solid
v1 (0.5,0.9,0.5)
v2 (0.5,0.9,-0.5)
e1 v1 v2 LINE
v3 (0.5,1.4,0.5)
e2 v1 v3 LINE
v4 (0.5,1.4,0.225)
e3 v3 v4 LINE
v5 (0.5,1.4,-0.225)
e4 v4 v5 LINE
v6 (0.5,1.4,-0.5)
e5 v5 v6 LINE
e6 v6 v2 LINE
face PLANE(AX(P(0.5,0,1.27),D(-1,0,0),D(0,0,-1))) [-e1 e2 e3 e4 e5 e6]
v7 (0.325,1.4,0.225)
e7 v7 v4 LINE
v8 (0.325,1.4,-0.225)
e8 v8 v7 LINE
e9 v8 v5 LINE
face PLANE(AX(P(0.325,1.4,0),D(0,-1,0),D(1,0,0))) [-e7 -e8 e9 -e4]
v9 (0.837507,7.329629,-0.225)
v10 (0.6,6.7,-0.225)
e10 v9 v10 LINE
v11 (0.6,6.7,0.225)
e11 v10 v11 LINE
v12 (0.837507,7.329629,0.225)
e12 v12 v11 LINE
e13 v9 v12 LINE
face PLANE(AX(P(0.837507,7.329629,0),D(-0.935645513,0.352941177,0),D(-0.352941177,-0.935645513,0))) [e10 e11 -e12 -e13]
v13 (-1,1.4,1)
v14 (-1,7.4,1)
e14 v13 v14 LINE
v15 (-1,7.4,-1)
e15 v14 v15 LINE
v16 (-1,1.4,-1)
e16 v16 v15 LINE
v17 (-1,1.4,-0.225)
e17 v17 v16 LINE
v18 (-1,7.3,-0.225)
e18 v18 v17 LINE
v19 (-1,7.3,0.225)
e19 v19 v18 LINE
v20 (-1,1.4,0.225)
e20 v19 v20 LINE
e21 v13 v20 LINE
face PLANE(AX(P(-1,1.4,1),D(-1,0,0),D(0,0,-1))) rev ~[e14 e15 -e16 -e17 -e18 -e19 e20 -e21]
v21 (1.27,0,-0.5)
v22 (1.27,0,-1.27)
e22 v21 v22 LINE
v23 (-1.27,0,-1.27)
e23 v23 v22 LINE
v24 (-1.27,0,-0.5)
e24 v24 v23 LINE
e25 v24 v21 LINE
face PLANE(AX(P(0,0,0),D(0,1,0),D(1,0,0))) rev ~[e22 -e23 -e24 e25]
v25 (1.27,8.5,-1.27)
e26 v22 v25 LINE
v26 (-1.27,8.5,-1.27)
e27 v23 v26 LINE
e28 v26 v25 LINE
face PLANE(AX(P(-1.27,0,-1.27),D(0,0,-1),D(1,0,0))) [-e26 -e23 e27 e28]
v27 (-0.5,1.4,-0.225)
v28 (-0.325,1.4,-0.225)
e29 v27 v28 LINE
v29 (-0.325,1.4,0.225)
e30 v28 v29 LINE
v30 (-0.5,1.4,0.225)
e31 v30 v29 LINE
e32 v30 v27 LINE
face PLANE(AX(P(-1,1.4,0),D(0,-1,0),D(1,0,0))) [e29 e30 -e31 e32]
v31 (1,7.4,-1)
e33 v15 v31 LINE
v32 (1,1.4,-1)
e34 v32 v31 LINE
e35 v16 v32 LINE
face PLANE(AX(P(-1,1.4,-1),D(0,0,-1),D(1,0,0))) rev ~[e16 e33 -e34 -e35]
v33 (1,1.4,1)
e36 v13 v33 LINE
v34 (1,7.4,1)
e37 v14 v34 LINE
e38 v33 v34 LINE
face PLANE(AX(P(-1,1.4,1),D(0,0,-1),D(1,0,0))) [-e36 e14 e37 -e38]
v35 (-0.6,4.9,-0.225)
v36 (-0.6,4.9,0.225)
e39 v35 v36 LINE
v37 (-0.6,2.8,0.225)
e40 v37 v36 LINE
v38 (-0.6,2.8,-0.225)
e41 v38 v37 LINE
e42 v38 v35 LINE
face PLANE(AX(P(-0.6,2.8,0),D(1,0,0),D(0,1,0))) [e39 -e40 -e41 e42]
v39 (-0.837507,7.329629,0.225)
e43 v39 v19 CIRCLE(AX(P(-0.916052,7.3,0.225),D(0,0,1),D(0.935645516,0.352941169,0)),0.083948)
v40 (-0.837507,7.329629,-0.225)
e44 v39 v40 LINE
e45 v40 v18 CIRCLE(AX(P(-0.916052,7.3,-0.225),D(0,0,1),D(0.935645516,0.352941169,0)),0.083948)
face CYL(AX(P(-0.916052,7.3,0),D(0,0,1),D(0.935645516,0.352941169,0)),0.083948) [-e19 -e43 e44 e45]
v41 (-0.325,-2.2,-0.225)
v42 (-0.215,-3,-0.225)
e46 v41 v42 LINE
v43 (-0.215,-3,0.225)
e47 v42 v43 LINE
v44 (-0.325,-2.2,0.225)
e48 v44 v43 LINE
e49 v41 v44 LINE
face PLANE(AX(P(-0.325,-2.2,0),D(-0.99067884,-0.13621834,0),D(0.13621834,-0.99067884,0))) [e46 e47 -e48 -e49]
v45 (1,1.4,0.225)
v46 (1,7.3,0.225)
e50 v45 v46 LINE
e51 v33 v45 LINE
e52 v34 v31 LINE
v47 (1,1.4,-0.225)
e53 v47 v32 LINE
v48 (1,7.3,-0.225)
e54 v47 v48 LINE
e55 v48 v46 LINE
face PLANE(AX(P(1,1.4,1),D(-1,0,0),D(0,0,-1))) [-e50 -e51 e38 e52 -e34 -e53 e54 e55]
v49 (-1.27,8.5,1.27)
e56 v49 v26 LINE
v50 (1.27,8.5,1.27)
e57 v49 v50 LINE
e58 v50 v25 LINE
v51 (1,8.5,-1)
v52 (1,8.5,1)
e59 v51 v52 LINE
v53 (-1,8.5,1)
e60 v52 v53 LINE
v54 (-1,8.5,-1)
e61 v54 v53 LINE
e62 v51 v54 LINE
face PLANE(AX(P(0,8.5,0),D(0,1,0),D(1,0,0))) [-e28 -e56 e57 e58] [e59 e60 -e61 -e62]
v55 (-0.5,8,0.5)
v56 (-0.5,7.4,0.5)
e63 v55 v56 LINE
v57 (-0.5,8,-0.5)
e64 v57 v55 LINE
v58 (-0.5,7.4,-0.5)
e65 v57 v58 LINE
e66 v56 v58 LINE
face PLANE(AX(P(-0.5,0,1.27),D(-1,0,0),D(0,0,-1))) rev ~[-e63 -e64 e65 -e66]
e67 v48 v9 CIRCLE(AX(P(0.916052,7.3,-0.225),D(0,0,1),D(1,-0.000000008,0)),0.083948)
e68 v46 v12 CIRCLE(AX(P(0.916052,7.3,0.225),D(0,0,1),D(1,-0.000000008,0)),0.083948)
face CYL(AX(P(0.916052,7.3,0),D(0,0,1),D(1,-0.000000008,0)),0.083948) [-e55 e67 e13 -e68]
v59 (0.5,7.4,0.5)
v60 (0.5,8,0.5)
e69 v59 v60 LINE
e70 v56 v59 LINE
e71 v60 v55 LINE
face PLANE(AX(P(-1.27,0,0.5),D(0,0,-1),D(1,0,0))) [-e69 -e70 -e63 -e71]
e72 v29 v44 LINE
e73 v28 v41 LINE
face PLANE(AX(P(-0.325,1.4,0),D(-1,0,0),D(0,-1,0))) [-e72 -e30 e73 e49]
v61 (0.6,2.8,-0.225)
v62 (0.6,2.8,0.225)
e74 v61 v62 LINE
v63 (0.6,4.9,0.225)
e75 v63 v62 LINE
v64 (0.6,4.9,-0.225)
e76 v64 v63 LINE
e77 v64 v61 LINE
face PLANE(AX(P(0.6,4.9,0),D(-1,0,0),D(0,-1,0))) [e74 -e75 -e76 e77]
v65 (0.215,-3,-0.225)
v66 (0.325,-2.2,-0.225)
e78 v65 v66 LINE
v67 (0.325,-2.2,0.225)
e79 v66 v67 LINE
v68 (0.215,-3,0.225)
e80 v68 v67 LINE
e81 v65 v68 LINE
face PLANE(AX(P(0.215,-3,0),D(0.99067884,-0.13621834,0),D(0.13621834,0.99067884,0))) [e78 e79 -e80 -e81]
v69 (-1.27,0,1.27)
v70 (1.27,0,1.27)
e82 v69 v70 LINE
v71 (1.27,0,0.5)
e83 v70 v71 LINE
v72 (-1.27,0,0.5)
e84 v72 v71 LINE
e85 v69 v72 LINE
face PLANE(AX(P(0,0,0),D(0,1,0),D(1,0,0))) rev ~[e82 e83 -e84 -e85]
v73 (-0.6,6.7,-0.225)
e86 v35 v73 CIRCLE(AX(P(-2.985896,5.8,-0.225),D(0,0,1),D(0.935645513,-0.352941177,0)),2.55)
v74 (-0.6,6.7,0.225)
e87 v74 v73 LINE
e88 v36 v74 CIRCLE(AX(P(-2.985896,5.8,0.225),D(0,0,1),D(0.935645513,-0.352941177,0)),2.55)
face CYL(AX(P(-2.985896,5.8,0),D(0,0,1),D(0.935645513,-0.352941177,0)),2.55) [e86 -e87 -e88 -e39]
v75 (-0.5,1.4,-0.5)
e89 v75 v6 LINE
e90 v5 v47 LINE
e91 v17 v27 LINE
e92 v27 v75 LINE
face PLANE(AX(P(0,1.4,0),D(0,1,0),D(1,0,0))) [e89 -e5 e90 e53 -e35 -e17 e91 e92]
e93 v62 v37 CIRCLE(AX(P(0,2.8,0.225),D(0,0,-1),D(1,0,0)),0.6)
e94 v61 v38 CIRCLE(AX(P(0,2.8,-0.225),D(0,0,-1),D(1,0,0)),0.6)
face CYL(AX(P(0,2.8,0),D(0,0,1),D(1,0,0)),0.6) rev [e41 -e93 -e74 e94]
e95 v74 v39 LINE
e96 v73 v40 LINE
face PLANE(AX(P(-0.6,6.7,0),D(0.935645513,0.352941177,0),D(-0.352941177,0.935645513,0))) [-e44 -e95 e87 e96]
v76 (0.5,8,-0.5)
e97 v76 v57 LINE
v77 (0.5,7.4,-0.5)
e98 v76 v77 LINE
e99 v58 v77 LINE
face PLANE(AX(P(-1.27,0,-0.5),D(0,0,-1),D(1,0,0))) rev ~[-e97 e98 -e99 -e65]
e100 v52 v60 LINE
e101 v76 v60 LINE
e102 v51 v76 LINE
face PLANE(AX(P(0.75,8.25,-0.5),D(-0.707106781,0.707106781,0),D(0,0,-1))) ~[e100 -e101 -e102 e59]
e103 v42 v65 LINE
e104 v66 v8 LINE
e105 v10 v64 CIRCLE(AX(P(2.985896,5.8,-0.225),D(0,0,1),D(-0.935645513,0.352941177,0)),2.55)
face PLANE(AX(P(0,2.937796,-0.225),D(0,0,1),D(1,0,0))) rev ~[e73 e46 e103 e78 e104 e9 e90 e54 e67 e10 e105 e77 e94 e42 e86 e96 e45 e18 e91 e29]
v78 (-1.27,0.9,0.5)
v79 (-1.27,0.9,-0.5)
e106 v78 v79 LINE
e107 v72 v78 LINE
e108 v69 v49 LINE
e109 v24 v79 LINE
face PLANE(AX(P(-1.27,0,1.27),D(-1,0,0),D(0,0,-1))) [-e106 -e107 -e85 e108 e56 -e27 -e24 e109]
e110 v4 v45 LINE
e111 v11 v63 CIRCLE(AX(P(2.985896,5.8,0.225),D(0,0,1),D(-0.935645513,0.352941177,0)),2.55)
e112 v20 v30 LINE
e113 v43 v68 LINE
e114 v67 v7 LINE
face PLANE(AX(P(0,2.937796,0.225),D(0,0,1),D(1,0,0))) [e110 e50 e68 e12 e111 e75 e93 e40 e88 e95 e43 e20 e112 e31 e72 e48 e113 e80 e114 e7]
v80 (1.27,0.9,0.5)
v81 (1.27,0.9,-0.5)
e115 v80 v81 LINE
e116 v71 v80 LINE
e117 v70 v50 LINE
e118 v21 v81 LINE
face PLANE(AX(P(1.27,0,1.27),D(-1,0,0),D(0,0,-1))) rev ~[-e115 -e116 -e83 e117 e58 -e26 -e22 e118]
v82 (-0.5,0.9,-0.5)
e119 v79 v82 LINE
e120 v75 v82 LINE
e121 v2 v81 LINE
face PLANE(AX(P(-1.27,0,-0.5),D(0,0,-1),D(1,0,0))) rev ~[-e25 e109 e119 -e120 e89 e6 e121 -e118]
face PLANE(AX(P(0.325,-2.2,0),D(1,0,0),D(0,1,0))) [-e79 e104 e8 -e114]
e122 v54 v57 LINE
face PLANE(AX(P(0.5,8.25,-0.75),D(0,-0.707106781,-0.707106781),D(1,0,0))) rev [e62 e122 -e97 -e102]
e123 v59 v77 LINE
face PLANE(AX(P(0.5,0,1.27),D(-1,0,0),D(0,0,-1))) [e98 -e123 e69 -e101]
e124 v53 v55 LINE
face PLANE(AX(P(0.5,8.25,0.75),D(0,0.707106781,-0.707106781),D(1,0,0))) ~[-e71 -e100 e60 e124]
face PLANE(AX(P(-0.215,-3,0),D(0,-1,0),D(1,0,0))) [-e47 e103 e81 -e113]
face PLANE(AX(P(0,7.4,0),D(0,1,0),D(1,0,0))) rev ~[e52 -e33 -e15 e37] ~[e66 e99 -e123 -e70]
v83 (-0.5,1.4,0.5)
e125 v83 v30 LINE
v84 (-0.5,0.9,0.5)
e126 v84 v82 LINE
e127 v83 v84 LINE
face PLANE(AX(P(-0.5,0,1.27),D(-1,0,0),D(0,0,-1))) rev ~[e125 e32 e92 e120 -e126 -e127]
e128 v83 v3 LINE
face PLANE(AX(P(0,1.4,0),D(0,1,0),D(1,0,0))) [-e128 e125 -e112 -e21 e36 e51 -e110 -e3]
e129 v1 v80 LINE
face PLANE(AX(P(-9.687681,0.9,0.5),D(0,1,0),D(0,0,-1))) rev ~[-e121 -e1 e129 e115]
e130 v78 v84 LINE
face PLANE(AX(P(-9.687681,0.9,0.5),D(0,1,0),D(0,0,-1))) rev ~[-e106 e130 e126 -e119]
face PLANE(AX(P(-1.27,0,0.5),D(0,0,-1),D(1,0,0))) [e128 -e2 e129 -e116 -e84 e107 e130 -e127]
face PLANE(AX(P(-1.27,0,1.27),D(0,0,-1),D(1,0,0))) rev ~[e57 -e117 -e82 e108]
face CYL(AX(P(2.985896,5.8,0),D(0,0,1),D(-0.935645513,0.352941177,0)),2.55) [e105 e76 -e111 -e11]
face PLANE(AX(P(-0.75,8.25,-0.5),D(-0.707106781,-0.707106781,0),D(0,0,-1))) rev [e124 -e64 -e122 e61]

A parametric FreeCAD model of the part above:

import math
import FreeCAD as App
import Part
import Sketcher
Q = App.Units.Quantity


def edges_at(feature, points):
    """Names of the edges that pass closest to the given points."""
    edges = feature.Shape.Edges
    near = lambda p: min(range(len(edges)), key=lambda i: edges[i].distToShape(Part.Vertex(*p))[0])
    return sorted({f"Edge{near(p) + 1}" for p in points})


def faces_at(feature, points):
    """Names of the faces that lie closest to the given points."""
    faces = feature.Shape.Faces
    near = lambda p: min(range(len(faces)), key=lambda i: faces[i].distToShape(Part.Vertex(*p))[0])
    return sorted({f"Face{near(p) + 1}" for p in points})


def add_polygon(sketch, points):
    """Adds a closed chain of lines whose ends are joined by coincident constraints."""
    first, n = sketch.GeometryCount, len(points)
    for a, b in zip(points, points[1:] + points[:1]):
        sketch.addGeometry(Part.LineSegment(App.Vector(*a, 0), App.Vector(*b, 0)), False)
    for i in range(n):
        sketch.addConstraint(Sketcher.Constraint("Coincident", first + i, 2, first + (i + 1) % n, 1))

doc = App.newDocument("Part")
body = doc.addObject("PartDesign::Body", "Body")

# Sketch on XZ plane
sketch1 = body.newObject("Sketcher::SketchObject", "Sketch")
sketch1.AttachmentSupport = (doc.getObject("XZ_Plane"), [""])
sketch1.MapMode = "FlatFace"
add_polygon(sketch1, [(-1.3, -1.3), (-1.3, 1.3), (1.3, 1.3), (1.3, -1.3)])  # lines 0-3
sketch1.addConstraint([
    Sketcher.Constraint("Vertical", 0),
    Sketcher.Constraint("Horizontal", 1),
    Sketcher.Constraint("Vertical", 2),
    Sketcher.Constraint("Horizontal", 3),
    Sketcher.Constraint("Symmetric", 0, 2, 2, 2, -1, 1),
    Sketcher.Constraint("Equal", 3, 0),
    Sketcher.Constraint("DistanceX", 1, 1, 1, 2, Q("2.54 mm")),
])
pad1 = body.newObject("PartDesign::Pad", "Pad")
pad1.Profile = sketch1
pad1.Length = 8.5
pad1.Reversed = True
doc.recompute()

thickness = body.newObject("PartDesign::Thickness", "Thickness")
thickness.Base = (pad1, faces_at(pad1, [(0, 8.5, 0)]))
thickness.Value = 0.77
thickness.Reversed = True
thickness.Join = "Intersection"
doc.recompute()

chamfer = body.newObject("PartDesign::Chamfer", "Chamfer")
chamfer.Base = (thickness, edges_at(thickness, [
    (-0.5, 8.5, 0),
    (0, 8.5, 0.5),
    (0.5, 8.5, 0),
    (0, 8.5, -0.5),
]))
chamfer.Size = 0.5

# Sketch on YZ plane
sketch2 = body.newObject("Sketcher::SketchObject", "Sketch001")
sketch2.AttachmentSupport = (doc.getObject("YZ_Plane"), [""])
sketch2.MapMode = "FlatFace"
add_polygon(sketch2, [(0.9, 0.5), (0, 0.5), (0, -0.5), (0.9, -0.5)])  # lines 0-3
sketch2.addConstraint([
    Sketcher.Constraint("Horizontal", 0),
    Sketcher.Constraint("Vertical", 1),
    Sketcher.Constraint("Horizontal", 2),
    Sketcher.Constraint("Vertical", 3),
    Sketcher.Constraint("Symmetric", 0, 2, 1, 2, -1, 1),
    Sketcher.Constraint("DistanceY", 1, 2, 1, 1, Q("1 mm")),
    Sketcher.Constraint("DistanceX", 0, 2, 0, 1, Q("0.9 mm")),
])
pocket1 = body.newObject("PartDesign::Pocket", "Pocket")
pocket1.Profile = sketch2
pocket1.Type = "ThroughAll"
pocket1.Midplane = True

# Sketch on XZ plane
sketch3 = body.newObject("Sketcher::SketchObject", "Sketch002")
sketch3.AttachmentSupport = (doc.getObject("XZ_Plane"), [""])
sketch3.MapMode = "FlatFace"
sketch3.AttachmentOffset = App.Placement(App.Vector(0, 0, -1.4), App.Rotation())
add_polygon(sketch3, [(-1, -1), (-1, 1), (1, 1), (1, -1)])  # lines 0-3
sketch3.addConstraint([
    Sketcher.Constraint("Vertical", 0),
    Sketcher.Constraint("Horizontal", 1),
    Sketcher.Constraint("Vertical", 2),
    Sketcher.Constraint("Horizontal", 3),
    Sketcher.Constraint("Symmetric", 0, 2, 2, 2, -1, 1),
    Sketcher.Constraint("Equal", 3, 0),
    Sketcher.Constraint("DistanceX", 1, 1, 1, 2, Q("2 mm")),
])
pocket2 = body.newObject("PartDesign::Pocket", "Pocket001")
pocket2.Profile = sketch3
pocket2.Length = 6

# Sketch on XY plane
sketch4 = body.newObject("Sketcher::SketchObject", "Sketch003")
sketch4.AttachmentSupport = (doc.getObject("XY_Plane"), [""])
sketch4.MapMode = "FlatFace"
sketch4.addGeometry([
    Part.LineSegment(App.Vector(-1, 7.3, 0), App.Vector(-1, 1.4, 0)),  # 0
    Part.LineSegment(App.Vector(-1, 1.4, 0), App.Vector(-0.33, 1.4, 0)),  # 1
    Part.LineSegment(App.Vector(-0.33, 1.4, 0), App.Vector(-0.33, -2.2, 0)),  # 2
    Part.LineSegment(App.Vector(-0.33, -2.2, 0), App.Vector(-0.21, -3, 0)),  # 3
    Part.LineSegment(App.Vector(-0.21, -3, 0), App.Vector(0.21, -3, 0)),  # 4
    Part.LineSegment(App.Vector(0.21, -3, 0), App.Vector(0.33, -2.2, 0)),  # 5
    Part.LineSegment(App.Vector(0.33, -2.2, 0), App.Vector(0.33, 1.4, 0)),  # 6
    Part.LineSegment(App.Vector(0.33, 1.4, 0), App.Vector(1, 1.4, 0)),  # 7
    Part.LineSegment(App.Vector(1, 1.4, 0), App.Vector(1, 7.3, 0)),  # 8
    Part.ArcOfCircle(Part.Circle(App.Vector(0.92, 7.3, 0), App.Vector(0, 0, 1), 0.08), math.radians(0), math.radians(159)),  # 9
    Part.LineSegment(App.Vector(0.84, 7.33, 0), App.Vector(0.6, 6.7, 0)),  # 10
    Part.ArcOfCircle(Part.Circle(App.Vector(2.99, 5.8, 0), App.Vector(0, 0, 1), 2.55), math.radians(159), math.radians(201)),  # 11
    Part.LineSegment(App.Vector(0.6, 4.9, 0), App.Vector(0.6, 2.8, 0)),  # 12
    Part.ArcOfCircle(Part.Circle(App.Vector(0, 2.8, 0), App.Vector(0, 0, 1), 0.6), math.radians(180), math.radians(360)),  # 13
    Part.LineSegment(App.Vector(-0.6, 2.8, 0), App.Vector(-0.6, 4.9, 0)),  # 14
    Part.ArcOfCircle(Part.Circle(App.Vector(-2.99, 5.8, 0), App.Vector(0, 0, 1), 2.55), math.radians(-21), math.radians(21)),  # 15
    Part.LineSegment(App.Vector(-0.6, 6.7, 0), App.Vector(-0.84, 7.33, 0)),  # 16
    Part.ArcOfCircle(Part.Circle(App.Vector(-0.92, 7.3, 0), App.Vector(0, 0, 1), 0.08), math.radians(21), math.radians(180)),  # 17
], False)
sketch4.addConstraint([
    Sketcher.Constraint("Coincident", 0, 2, 1, 1),
    Sketcher.Constraint("Coincident", 1, 2, 2, 1),
    Sketcher.Constraint("Coincident", 2, 2, 3, 1),
    Sketcher.Constraint("Coincident", 3, 2, 4, 1),
    Sketcher.Constraint("Coincident", 4, 2, 5, 1),
    Sketcher.Constraint("Coincident", 5, 2, 6, 1),
    Sketcher.Constraint("Coincident", 6, 2, 7, 1),
    Sketcher.Constraint("Coincident", 7, 2, 8, 1),
    Sketcher.Constraint("Tangent", 8, 2, 9, 1),
    Sketcher.Constraint("Tangent", 9, 2, 10, 1),
    Sketcher.Constraint("Tangent", 10, 2, 11, 1),
    Sketcher.Constraint("Coincident", 11, 2, 12, 1),
    Sketcher.Constraint("Tangent", 12, 2, 13, 2),
    Sketcher.Constraint("Tangent", 13, 1, 14, 1),
    Sketcher.Constraint("Coincident", 14, 2, 15, 1),
    Sketcher.Constraint("Tangent", 15, 2, 16, 1),
    Sketcher.Constraint("Tangent", 16, 2, 17, 1),
    Sketcher.Constraint("Tangent", 17, 2, 0, 1),
    Sketcher.Constraint("Vertical", 0),
    Sketcher.Constraint("Horizontal", 1),
    Sketcher.Constraint("Vertical", 2),
    Sketcher.Constraint("Horizontal", 4),
    Sketcher.Constraint("Vertical", 6),
    Sketcher.Constraint("Horizontal", 7),
    Sketcher.Constraint("Vertical", 8),
    Sketcher.Constraint("Vertical", 12),
    Sketcher.Constraint("Vertical", 14),
    Sketcher.Constraint("Equal", 11, 15),
    Sketcher.Constraint("Equal", 9, 17),
    Sketcher.Constraint("Symmetric", 11, 3, 15, 3, -2),
    Sketcher.Constraint("Symmetric", 9, 3, 17, 3, -2),
    Sketcher.Constraint("Symmetric", 2, 2, 5, 2, -2),
    Sketcher.Constraint("PointOnObject", 13, 3, -2),
    Sketcher.Constraint("Horizontal", 1, 2, 6, 2),
    Sketcher.Constraint("Vertical", 10, 2, 11, 2),
    Sketcher.Constraint("Equal", 3, 5),
    Sketcher.Constraint("Radius", 13, Q("0.6 mm")),
    Sketcher.Constraint("Radius", 11, Q("2.55 mm")),
    Sketcher.Constraint("DistanceY", 0, 2, 0, 1, Q("5.9 mm")),
    Sketcher.Constraint("DistanceY", 2, 2, 2, 1, Q("3.6 mm")),
    Sketcher.Constraint("DistanceY", 12, 2, 12, 1, Q("2.1 mm")),
    Sketcher.Constraint("DistanceX", 0, 2, -1, 1, Q("1 mm")),
    Sketcher.Constraint("DistanceY", 3, 2, -1, 1, Q("3 mm")),
    Sketcher.Constraint("DistanceY", 13, 3, 11, 3, Q("3 mm")),
    Sketcher.Constraint("DistanceY", 2, 2, 13, 3, Q("5 mm")),
    Sketcher.Constraint("DistanceX", 4, 1, 4, 2, Q("0.43 mm")),
    Sketcher.Constraint("DistanceY", -1, 1, 9, 3, Q("7.3 mm")),
    Sketcher.Constraint("DistanceX", 1, 1, 1, 2, Q("0.675 mm")),
])
pad2 = body.newObject("PartDesign::Pad", "Pad001")
pad2.Profile = sketch4
pad2.Length = 0.45
pad2.Midplane = True

doc.recompute()
